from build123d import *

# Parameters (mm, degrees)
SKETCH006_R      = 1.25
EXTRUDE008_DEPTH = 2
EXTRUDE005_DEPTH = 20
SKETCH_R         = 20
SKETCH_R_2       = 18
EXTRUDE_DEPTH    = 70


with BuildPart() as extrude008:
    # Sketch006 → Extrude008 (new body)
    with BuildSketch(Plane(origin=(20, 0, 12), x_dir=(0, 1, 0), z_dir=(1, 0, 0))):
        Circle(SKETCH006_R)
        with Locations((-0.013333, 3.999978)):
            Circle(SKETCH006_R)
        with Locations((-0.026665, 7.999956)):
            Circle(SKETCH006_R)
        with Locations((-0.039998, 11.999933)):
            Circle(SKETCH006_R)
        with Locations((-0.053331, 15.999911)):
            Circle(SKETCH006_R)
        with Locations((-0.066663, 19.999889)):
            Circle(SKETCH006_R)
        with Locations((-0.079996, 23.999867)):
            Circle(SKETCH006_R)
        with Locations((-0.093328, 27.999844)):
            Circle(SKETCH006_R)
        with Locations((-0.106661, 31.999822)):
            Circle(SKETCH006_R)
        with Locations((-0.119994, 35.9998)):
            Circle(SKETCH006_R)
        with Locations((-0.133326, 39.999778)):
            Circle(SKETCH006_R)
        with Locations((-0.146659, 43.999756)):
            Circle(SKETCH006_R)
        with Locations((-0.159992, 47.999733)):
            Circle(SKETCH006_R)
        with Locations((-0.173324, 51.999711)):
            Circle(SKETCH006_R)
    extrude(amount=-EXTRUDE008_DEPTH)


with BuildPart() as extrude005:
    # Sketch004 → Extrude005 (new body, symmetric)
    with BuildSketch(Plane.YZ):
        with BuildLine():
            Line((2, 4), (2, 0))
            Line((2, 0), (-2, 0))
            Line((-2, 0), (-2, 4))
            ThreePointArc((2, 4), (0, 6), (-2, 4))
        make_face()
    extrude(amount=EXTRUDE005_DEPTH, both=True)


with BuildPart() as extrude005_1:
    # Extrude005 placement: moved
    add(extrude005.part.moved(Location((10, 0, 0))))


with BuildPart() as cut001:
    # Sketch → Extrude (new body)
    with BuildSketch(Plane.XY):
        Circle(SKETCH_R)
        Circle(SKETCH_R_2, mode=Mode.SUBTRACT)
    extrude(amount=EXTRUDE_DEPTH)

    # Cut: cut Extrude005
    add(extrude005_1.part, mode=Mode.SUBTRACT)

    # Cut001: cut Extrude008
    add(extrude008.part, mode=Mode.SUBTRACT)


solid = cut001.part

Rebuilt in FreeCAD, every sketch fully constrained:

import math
import FreeCAD as App
import Part
import Sketcher

V = App.Vector
Q = App.Units.Quantity

doc = App.newDocument("Part")
body = doc.addObject("PartDesign::Body", "Body")
body.AllowCompound = True

# Sketch on YZ plane
sketch1 = doc.addObject("Sketcher::SketchObject", "Sketch")
body.addObject(sketch1)
sketch1.AttachmentSupport = (doc.YZ_Plane, [""])
sketch1.MapMode = "FlatFace"
sketch1.AttachmentOffset = App.Placement(V(0, 0, 20), App.Rotation())
sketch1.addGeometry(Part.Circle(V(0, 12, 0), V(0, 0, 1), 1.2), False)
sketch1.addGeometry(Part.Circle(V(0, 16, 0), V(0, 0, 1), 1.2), False)
sketch1.addGeometry(Part.Circle(V(0, 20, 0), V(0, 0, 1), 1.2), False)
sketch1.addGeometry(Part.Circle(V(0, 24, 0), V(0, 0, 1), 1.2), False)
sketch1.addGeometry(Part.Circle(V(-0.1, 28, 0), V(0, 0, 1), 1.2), False)
sketch1.addGeometry(Part.Circle(V(-0.1, 32, 0), V(0, 0, 1), 1.2), False)
sketch1.addGeometry(Part.Circle(V(-0.1, 36, 0), V(0, 0, 1), 1.2), False)
sketch1.addGeometry(Part.Circle(V(-0.1, 40, 0), V(0, 0, 1), 1.2), False)
sketch1.addGeometry(Part.Circle(V(-0.1, 44, 0), V(0, 0, 1), 1.2), False)
sketch1.addGeometry(Part.Circle(V(-0.1, 48, 0), V(0, 0, 1), 1.2), False)
sketch1.addGeometry(Part.Circle(V(-0.1, 52, 0), V(0, 0, 1), 1.2), False)
sketch1.addGeometry(Part.Circle(V(-0.1, 56, 0), V(0, 0, 1), 1.2), False)
sketch1.addGeometry(Part.Circle(V(-0.2, 60, 0), V(0, 0, 1), 1.2), False)
sketch1.addGeometry(Part.Circle(V(-0.2, 64, 0), V(0, 0, 1), 1.2), False)
sketch1.addConstraint(Sketcher.Constraint("Equal", 0, 1))
sketch1.addConstraint(Sketcher.Constraint("Equal", 1, 2))
sketch1.addConstraint(Sketcher.Constraint("Equal", 2, 3))
sketch1.addConstraint(Sketcher.Constraint("Equal", 3, 4))
sketch1.addConstraint(Sketcher.Constraint("Equal", 4, 5))
sketch1.addConstraint(Sketcher.Constraint("Equal", 5, 6))
sketch1.addConstraint(Sketcher.Constraint("Equal", 6, 7))
sketch1.addConstraint(Sketcher.Constraint("Equal", 7, 8))
sketch1.addConstraint(Sketcher.Constraint("Equal", 8, 9))
sketch1.addConstraint(Sketcher.Constraint("Equal", 9, 10))
sketch1.addConstraint(Sketcher.Constraint("Equal", 10, 11))
sketch1.addConstraint(Sketcher.Constraint("Equal", 11, 12))
sketch1.addConstraint(Sketcher.Constraint("Equal", 12, 13))
sketch1.addConstraint(Sketcher.Constraint("PointOnObject", 0, 3, -2))
sketch1.addConstraint(Sketcher.Constraint("Diameter", 0, Q("2.5 mm")))
sketch1.addConstraint(Sketcher.Constraint("DistanceY", -1, 1, 0, 3, Q("12 mm")))
sketch1.addConstraint(Sketcher.Constraint("DistanceX", 4, 3, 1, 3, Q("0.039998 mm")))
sketch1.addConstraint(Sketcher.Constraint("DistanceX", 8, 3, 5, 3, Q("0.039998 mm")))
sketch1.addConstraint(Sketcher.Constraint("DistanceX", 9, 3, 6, 3, Q("0.039998 mm")))
sketch1.addConstraint(Sketcher.Constraint("DistanceX", 10, 3, 7, 3, Q("0.039998 mm")))
sketch1.addConstraint(Sketcher.Constraint("DistanceX", 11, 3, 8, 3, Q("0.039998 mm")))
sketch1.addConstraint(Sketcher.Constraint("DistanceX", 13, 3, 10, 3, Q("0.039998 mm")))
sketch1.addConstraint(Sketcher.Constraint("DistanceY", -1, 1, 9, 3, Q("47.9998 mm")))
sketch1.addConstraint(Sketcher.Constraint("DistanceX", 4, 3, -1, 1, Q("0.053331 mm")))
sketch1.addConstraint(Sketcher.Constraint("DistanceY", -1, 1, 4, 3, Q("27.999911 mm")))
sketch1.addConstraint(Sketcher.Constraint("DistanceY", -1, 1, 5, 3, Q("31.999889 mm")))
sketch1.addConstraint(Sketcher.Constraint("DistanceX", 8, 3, -1, 1, Q("0.106661 mm")))
sketch1.addConstraint(Sketcher.Constraint("DistanceY", -1, 1, 13, 3, Q("63.999711 mm")))
sketch1.addConstraint(Sketcher.Constraint("DistanceY", 0, 3, 1, 3, Q("3.999978 mm")))
sketch1.addConstraint(Sketcher.Constraint("DistanceY", 1, 3, 2, 3, Q("3.999978 mm")))
sketch1.addConstraint(Sketcher.Constraint("DistanceY", 3, 3, 4, 3, Q("3.999978 mm")))
sketch1.addConstraint(Sketcher.Constraint("DistanceY", 5, 3, 6, 3, Q("3.999978 mm")))
sketch1.addConstraint(Sketcher.Constraint("DistanceX", 6, 3, 2, 3, Q("0.053331 mm")))
sketch1.addConstraint(Sketcher.Constraint("DistanceX", 7, 3, 6, 3, Q("0.013332 mm")))
sketch1.addConstraint(Sketcher.Constraint("DistanceX", 7, 3, 3, 3, Q("0.05333 mm")))
sketch1.addConstraint(Sketcher.Constraint("DistanceY", 3, 3, 7, 3, Q("15.999911 mm")))
sketch1.addConstraint(Sketcher.Constraint("DistanceY", 4, 3, 8, 3, Q("15.999911 mm")))
sketch1.addConstraint(Sketcher.Constraint("DistanceX", 9, 3, 5, 3, Q("0.053331 mm")))
sketch1.addConstraint(Sketcher.Constraint("DistanceY", 6, 3, 10, 3, Q("15.999911 mm")))
sketch1.addConstraint(Sketcher.Constraint("DistanceY", 7, 3, 11, 3, Q("15.999912 mm")))
sketch1.addConstraint(Sketcher.Constraint("DistanceX", 12, 3, 8, 3, Q("0.053331 mm")))
sketch1.addConstraint(Sketcher.Constraint("DistanceY", 8, 3, 12, 3, Q("15.999911 mm")))
pad1 = doc.addObject("PartDesign::Pad", "Pad")
body.addObject(pad1)
pad1.Profile = sketch1
pad1.Length = 2
pad1.Reversed = True
body2 = doc.addObject("PartDesign::Body", "Body001")

# Sketch on YZ plane
sketch2 = doc.addObject("Sketcher::SketchObject", "Sketch001")
body2.addObject(sketch2)
sketch2.AttachmentSupport = (doc.getObject("YZ_Plane001"), [""])
sketch2.MapMode = "FlatFace"
sketch2.addGeometry(Part.LineSegment(V(2, 0, 0), V(2, 4, 0)), False)
sketch2.addGeometry(Part.ArcOfCircle(Part.Circle(V(0, 4, 0), V(0, 0, 1), 2), math.radians(0), math.radians(180)), False)
sketch2.addGeometry(Part.LineSegment(V(-2, 4, 0), V(-2, 0, 0)), False)
sketch2.addGeometry(Part.LineSegment(V(-2, 0, 0), V(2, 0, 0)), False)
sketch2.addConstraint(Sketcher.Constraint("Tangent", 0, 2, 1, 1))
sketch2.addConstraint(Sketcher.Constraint("Tangent", 1, 2, 2, 1))
sketch2.addConstraint(Sketcher.Constraint("Coincident", 2, 2, 3, 1))
sketch2.addConstraint(Sketcher.Constraint("Coincident", 3, 2, 0, 1))
sketch2.addConstraint(Sketcher.Constraint("Vertical", 0))
sketch2.addConstraint(Sketcher.Constraint("Vertical", 2))
sketch2.addConstraint(Sketcher.Constraint("Horizontal", 3))
sketch2.addConstraint(Sketcher.Constraint("Symmetric", 2, 2, 3, 2, -1, 1))
sketch2.addConstraint(Sketcher.Constraint("Equal", 3, 0))
sketch2.addConstraint(Sketcher.Constraint("Radius", 1, Q("2 mm")))
pad2 = doc.addObject("PartDesign::Pad", "Pad001")
body2.addObject(pad2)
pad2.Profile = sketch2
pad2.Length = 40
pad2.Midplane = True
body3 = doc.addObject("PartDesign::Body", "Body002")
doc.recompute()

body2.Placement = App.Placement(V(10, 0, 0), App.Rotation(V(0, 0, 1), 0))
boolean = doc.addObject("PartDesign::Boolean", "Boolean")
body3.addObject(boolean)
boolean.Type = "Fuse"
boolean.addObjects([body2])
body4 = doc.addObject("PartDesign::Body", "Body003")

# Sketch on XY plane
sketch3 = doc.addObject("Sketcher::SketchObject", "Sketch002")
body4.addObject(sketch3)
sketch3.AttachmentSupport = (doc.getObject("XY_Plane003"), [""])
sketch3.MapMode = "FlatFace"
sketch3.addGeometry(Part.Circle(V(0, 0, 0), V(0, 0, 1), 20), False)
sketch3.addGeometry(Part.Circle(V(0, 0, 0), V(0, 0, 1), 18), False)
sketch3.addConstraint(Sketcher.Constraint("Coincident", 0, 3, -1, 1))
sketch3.addConstraint(Sketcher.Constraint("Coincident", 1, 3, -1, 1))
sketch3.addConstraint(Sketcher.Constraint("Diameter", 0, Q("40 mm")))
sketch3.addConstraint(Sketcher.Constraint("Diameter", 1, Q("36 mm")))
pad3 = doc.addObject("PartDesign::Pad", "Pad002")
body4.addObject(pad3)
pad3.Profile = sketch3
pad3.Length = 70
doc.recompute()

boolean2 = doc.addObject("PartDesign::Boolean", "Boolean001")
body4.addObject(boolean2)
boolean2.Type = "Cut"
boolean2.addObjects([body3])
doc.recompute()

boolean3 = doc.addObject("PartDesign::Boolean", "Boolean002")
body4.addObject(boolean3)
boolean3.Type = "Cut"
boolean3.addObjects([body])

doc.recompute()
